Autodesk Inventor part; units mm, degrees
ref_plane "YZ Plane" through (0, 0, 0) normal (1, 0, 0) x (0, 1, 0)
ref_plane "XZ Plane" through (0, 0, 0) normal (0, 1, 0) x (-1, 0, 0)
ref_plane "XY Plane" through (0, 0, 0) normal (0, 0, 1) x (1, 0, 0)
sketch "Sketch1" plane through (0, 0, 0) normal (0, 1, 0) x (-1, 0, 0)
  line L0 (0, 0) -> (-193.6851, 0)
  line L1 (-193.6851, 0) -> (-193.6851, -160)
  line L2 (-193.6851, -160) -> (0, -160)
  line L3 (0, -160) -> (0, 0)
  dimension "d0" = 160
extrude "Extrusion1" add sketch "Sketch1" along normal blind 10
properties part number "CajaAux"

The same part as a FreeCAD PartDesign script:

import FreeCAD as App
import Part
import Sketcher

V = App.Vector
Q = App.Units.Quantity

doc = App.newDocument("Part")
params = doc.addObject("Spreadsheet::Sheet", "Params")
for row, (alias, value) in enumerate([
    ("sketch1_height", "160 mm"),
    ("pad1_length", "10 mm"),
], start=1):
    params.set(f"A{row}", alias)
    params.set(f"B{row}", "=" + value)
    params.setAlias(f"B{row}", alias)

body = doc.addObject("PartDesign::Body", "Body")

# Sketch on XZ plane
sketch1 = body.newObject("Sketcher::SketchObject", "Sketch")
sketch1.AttachmentSupport = (doc.getObject("XZ_Plane"), [""])
sketch1.MapMode = "FlatFace"
sketch1.addGeometry(Part.LineSegment(V(0, -160, 0), V(0, 0, 0)), False)
sketch1.addGeometry(Part.LineSegment(V(0, 0, 0), V(193.6851, 0, 0)), False)
sketch1.addGeometry(Part.LineSegment(V(193.6851, 0, 0), V(193.6851, -160, 0)), False)
sketch1.addGeometry(Part.LineSegment(V(193.6851, -160, 0), V(0, -160, 0)), False)
sketch1.addConstraint(Sketcher.Constraint("Coincident", 0, 2, 1, 1))
sketch1.addConstraint(Sketcher.Constraint("Coincident", 1, 2, 2, 1))
sketch1.addConstraint(Sketcher.Constraint("Coincident", 2, 2, 3, 1))
sketch1.addConstraint(Sketcher.Constraint("Coincident", 3, 2, 0, 1))
sketch1.addConstraint(Sketcher.Constraint("Vertical", 0))
sketch1.addConstraint(Sketcher.Constraint("Horizontal", 1))
sketch1.addConstraint(Sketcher.Constraint("Vertical", 2))
sketch1.addConstraint(Sketcher.Constraint("Horizontal", 3))
sketch1.addConstraint(Sketcher.Constraint("Coincident", 0, 2, -1, 1))
sketch1.addConstraint(Sketcher.Constraint("DistanceY", 0, 1, 0, 2, Q("160 mm")))
sketch1.addConstraint(Sketcher.Constraint("DistanceX", 1, 1, 1, 2, Q("193.685 mm")))
sketch1.setExpression("Constraints[9]", "Params.sketch1_height")
pad1 = body.newObject("PartDesign::Pad", "Pad")
pad1.Profile = sketch1
pad1.setExpression("Length", "Params.pad1_length")
pad1.Reversed = True

doc.recompute()
